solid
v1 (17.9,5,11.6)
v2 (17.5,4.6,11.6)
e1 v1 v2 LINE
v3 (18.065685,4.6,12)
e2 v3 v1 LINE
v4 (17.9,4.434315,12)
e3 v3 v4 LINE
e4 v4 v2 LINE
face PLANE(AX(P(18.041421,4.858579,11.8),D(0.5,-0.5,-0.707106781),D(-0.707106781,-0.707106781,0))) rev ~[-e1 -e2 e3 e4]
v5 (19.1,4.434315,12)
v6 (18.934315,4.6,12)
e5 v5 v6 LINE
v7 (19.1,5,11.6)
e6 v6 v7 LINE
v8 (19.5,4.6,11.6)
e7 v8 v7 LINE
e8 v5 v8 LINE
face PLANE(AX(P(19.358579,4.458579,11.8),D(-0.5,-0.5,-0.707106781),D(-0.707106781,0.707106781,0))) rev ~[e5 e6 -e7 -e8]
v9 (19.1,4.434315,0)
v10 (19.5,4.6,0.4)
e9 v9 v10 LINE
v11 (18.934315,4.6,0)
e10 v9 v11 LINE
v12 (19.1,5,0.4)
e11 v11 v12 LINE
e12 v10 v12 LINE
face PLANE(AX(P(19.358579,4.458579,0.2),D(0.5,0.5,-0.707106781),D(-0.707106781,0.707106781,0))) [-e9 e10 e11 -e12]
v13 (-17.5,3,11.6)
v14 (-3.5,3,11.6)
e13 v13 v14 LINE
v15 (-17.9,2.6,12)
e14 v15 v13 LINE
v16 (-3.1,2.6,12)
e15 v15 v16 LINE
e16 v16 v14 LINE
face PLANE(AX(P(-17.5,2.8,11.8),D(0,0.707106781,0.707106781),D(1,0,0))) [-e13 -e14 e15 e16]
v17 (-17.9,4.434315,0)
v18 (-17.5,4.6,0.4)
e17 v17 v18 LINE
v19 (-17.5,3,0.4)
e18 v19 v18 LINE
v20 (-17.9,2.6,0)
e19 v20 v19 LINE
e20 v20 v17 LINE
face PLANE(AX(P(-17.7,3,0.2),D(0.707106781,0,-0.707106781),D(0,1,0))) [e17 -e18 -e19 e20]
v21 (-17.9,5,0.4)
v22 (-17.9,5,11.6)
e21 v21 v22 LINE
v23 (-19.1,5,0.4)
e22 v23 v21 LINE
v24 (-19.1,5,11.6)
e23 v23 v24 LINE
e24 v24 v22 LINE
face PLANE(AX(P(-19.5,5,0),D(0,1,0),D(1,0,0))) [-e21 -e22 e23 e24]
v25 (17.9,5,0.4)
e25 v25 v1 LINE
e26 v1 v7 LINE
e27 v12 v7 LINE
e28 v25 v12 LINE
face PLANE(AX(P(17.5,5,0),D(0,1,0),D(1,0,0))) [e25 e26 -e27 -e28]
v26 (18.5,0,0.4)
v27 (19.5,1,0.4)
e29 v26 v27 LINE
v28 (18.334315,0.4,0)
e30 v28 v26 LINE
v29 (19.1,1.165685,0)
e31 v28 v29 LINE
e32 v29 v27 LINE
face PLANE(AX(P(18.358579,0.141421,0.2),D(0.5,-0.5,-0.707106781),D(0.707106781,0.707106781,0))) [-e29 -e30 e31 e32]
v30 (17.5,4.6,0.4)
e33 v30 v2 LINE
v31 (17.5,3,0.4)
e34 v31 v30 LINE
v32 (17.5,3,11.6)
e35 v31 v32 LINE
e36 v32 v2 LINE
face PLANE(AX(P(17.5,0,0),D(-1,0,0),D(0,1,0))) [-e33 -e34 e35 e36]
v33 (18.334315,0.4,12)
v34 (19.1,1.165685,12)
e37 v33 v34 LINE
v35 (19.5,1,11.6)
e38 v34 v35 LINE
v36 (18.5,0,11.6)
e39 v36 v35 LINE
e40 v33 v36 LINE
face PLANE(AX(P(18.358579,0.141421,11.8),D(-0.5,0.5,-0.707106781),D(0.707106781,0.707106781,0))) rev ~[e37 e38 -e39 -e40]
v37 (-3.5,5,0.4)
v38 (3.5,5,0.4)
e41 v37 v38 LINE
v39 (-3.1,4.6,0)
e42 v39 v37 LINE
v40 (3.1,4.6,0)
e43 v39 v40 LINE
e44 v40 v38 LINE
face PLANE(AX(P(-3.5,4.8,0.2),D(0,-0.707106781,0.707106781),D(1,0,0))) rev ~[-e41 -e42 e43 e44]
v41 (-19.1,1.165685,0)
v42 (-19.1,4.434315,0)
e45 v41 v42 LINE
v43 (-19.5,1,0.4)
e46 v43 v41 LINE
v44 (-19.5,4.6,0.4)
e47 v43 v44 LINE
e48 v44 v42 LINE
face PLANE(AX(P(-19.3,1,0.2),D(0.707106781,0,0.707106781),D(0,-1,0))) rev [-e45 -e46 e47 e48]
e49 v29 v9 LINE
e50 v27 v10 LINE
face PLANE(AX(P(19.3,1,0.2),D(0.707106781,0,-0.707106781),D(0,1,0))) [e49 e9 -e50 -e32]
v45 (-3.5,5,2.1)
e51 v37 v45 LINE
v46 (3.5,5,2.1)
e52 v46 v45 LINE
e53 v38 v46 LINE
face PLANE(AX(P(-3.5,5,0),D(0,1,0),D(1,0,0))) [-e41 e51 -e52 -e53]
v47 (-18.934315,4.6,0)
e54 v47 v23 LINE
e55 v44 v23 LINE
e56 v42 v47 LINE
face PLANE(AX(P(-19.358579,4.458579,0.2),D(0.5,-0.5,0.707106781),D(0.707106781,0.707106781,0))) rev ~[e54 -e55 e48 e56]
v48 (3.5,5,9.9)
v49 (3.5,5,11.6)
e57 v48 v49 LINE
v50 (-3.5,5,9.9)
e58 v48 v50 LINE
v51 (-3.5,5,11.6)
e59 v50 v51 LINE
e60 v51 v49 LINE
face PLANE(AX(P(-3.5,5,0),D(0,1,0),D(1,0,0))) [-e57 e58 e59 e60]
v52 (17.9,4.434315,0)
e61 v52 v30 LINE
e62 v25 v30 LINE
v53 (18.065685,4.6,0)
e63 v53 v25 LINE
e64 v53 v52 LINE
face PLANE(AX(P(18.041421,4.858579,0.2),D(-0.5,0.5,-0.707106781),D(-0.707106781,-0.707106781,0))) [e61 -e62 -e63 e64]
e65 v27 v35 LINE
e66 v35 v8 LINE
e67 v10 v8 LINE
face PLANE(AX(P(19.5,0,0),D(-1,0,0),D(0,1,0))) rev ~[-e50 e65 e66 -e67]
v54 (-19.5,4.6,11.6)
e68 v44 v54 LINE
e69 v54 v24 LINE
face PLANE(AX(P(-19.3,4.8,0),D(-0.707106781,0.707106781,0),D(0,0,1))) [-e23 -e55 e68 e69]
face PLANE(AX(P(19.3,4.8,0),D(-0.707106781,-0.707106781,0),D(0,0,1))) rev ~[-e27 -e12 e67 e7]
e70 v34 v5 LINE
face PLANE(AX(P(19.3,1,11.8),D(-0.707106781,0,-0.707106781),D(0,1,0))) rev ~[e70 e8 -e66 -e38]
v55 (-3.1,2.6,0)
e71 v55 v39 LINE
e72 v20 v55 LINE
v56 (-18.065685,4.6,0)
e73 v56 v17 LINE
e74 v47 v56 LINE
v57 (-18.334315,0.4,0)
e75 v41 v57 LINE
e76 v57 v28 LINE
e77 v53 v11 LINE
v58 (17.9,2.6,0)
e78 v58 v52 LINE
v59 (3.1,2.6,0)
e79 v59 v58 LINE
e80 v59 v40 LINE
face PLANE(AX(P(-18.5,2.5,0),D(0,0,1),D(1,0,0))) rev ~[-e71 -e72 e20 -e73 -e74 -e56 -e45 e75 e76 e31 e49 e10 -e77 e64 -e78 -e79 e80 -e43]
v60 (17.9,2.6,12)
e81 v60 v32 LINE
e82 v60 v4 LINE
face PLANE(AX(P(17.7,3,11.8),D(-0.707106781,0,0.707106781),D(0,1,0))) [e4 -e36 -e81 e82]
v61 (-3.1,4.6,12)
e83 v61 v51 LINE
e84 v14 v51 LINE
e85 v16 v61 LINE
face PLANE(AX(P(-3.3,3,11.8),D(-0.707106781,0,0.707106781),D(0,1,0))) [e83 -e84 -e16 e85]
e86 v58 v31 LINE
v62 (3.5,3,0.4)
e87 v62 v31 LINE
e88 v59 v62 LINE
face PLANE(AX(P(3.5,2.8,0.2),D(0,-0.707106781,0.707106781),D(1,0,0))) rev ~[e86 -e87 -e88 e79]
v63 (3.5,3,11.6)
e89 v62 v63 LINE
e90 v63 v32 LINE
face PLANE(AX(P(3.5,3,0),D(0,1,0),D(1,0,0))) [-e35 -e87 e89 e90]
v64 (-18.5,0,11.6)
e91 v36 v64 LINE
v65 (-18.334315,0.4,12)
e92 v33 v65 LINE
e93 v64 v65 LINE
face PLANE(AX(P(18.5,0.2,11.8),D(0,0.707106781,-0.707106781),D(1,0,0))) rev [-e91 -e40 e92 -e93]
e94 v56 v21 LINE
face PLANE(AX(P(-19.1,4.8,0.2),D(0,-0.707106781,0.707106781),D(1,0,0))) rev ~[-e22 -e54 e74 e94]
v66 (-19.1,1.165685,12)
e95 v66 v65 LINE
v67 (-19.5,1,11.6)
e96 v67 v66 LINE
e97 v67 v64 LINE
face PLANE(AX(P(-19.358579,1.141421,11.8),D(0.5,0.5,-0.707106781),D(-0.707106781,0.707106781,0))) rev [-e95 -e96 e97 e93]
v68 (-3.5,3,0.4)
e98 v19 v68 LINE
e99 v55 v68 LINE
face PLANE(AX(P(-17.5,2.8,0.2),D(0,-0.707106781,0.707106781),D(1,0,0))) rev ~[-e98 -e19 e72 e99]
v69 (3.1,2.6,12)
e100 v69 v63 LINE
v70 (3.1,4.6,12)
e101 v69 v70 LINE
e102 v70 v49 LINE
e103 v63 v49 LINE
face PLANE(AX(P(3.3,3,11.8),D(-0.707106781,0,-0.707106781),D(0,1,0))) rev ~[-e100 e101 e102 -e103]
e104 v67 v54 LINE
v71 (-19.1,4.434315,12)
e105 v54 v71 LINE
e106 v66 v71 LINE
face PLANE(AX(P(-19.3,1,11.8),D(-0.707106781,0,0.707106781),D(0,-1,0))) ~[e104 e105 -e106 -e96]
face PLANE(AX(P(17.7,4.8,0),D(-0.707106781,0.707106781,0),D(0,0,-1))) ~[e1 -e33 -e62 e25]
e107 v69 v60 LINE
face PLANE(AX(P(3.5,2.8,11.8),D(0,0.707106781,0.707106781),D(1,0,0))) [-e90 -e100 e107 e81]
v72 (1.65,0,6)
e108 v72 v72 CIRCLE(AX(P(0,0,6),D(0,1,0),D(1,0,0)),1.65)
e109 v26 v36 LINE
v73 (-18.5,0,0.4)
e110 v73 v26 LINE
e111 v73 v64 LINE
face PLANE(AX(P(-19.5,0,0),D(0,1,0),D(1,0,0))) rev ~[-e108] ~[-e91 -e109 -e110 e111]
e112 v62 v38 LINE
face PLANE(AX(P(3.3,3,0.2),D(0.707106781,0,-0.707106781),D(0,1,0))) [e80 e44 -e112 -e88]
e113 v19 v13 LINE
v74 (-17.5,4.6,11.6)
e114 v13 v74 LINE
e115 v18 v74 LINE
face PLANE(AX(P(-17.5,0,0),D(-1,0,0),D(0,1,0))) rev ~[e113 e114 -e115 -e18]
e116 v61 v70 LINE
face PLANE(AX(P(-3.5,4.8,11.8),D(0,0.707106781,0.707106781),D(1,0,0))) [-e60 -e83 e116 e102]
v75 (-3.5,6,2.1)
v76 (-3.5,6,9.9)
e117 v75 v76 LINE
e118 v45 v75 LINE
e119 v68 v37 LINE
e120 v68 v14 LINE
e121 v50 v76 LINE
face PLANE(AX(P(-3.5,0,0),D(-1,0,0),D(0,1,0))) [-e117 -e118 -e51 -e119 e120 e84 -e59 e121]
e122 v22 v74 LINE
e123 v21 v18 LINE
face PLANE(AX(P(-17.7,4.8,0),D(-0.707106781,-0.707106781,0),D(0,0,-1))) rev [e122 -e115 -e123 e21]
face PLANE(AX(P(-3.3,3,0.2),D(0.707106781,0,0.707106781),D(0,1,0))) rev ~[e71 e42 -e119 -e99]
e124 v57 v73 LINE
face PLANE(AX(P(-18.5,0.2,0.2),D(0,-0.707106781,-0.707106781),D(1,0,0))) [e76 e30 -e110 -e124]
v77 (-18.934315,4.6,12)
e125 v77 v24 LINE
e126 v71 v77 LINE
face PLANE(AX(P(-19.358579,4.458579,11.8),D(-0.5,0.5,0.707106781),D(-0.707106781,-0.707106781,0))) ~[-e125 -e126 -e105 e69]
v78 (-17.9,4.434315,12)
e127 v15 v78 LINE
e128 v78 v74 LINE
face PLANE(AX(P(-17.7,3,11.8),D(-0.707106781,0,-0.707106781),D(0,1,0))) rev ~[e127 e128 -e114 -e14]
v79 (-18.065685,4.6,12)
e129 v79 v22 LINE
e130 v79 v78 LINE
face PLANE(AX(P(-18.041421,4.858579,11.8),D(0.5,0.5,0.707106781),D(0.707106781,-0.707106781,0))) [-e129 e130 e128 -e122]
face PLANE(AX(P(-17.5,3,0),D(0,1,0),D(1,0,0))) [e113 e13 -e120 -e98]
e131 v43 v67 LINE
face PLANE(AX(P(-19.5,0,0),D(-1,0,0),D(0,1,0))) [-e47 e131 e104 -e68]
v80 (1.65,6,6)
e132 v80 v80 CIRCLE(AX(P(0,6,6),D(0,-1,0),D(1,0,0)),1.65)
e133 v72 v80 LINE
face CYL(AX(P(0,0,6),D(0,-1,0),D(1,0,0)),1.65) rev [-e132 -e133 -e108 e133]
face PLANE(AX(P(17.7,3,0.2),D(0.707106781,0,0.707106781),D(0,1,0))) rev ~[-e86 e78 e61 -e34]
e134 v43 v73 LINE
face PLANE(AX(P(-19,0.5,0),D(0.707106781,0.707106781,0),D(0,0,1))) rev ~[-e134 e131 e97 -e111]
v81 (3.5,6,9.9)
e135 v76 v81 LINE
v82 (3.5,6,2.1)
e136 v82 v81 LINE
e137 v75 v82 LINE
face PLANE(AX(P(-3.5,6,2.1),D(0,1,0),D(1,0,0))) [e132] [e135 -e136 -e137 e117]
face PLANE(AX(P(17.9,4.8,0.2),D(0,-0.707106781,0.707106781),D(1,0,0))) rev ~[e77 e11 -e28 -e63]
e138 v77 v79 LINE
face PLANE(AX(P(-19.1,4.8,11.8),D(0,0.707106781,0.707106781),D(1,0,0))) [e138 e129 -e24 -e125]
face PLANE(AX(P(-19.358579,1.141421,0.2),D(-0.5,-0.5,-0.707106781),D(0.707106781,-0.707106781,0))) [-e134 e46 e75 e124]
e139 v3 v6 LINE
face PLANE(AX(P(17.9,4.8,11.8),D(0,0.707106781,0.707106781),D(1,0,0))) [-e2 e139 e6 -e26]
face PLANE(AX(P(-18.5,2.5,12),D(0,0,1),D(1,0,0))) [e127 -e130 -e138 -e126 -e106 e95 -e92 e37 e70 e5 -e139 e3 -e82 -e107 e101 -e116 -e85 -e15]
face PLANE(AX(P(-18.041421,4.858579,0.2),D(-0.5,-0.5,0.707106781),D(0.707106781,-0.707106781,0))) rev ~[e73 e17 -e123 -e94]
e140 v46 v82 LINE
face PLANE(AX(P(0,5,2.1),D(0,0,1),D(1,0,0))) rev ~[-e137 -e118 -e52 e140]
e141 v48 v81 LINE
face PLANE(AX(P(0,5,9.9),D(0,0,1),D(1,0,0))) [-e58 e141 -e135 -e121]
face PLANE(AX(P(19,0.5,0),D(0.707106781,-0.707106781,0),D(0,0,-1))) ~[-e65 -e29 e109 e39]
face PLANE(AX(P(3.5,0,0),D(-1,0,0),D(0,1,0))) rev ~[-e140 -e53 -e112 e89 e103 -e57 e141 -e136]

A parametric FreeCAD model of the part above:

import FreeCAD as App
import Part
import Sketcher

V = App.Vector


def edges_at(feature, points):
    """Names of the edges that pass closest to the given points."""
    edges = feature.Shape.Edges
    near = lambda p: min(range(len(edges)), key=lambda i: edges[i].distToShape(Part.Vertex(*p))[0])
    return sorted({f"Edge{near(p) + 1}" for p in points})

doc = App.newDocument("Part")
body = doc.addObject("PartDesign::Body", "Body")

# Sketch on XZ plane
sketch1 = doc.addObject("Sketcher::SketchObject", "Sketch")
body.addObject(sketch1)
sketch1.AttachmentSupport = (doc.XZ_Plane, [""])
sketch1.MapMode = "FlatFace"
sketch1.addGeometry(Part.Circle(V(0, 6, 0), V(0, 0, 1), 1.65), False)
sketch1.addConstraint([
    Sketcher.Constraint("PointOnObject", 0, 3, -2),
    Sketcher.Constraint("Diameter", 0, 3.3),
    Sketcher.Constraint("DistanceY", -1, 1, 0, 3, 6.0),
])
pad1 = doc.addObject("PartDesign::Pad", "Pad")
body.addObject(pad1)
pad1.Profile = sketch1
pad1.Length = 10
pad1.Reversed = True
body2 = doc.addObject("PartDesign::Body", "Body001")

# Sketch on XY plane
sketch2 = doc.addObject("Sketcher::SketchObject", "Sketch001")
body2.addObject(sketch2)
sketch2.AttachmentSupport = (doc.getObject("XY_Plane001"), [""])
sketch2.MapMode = "FlatFace"
sketch2.addGeometry([
    Part.LineSegment(V(-3.5, 5, 0), V(-3.5, 0, 0)),
    Part.LineSegment(V(-3.5, 0, 0), V(3.5, 0, 0)),
    Part.LineSegment(V(3.5, 0, 0), V(3.5, 5, 0)),
    Part.LineSegment(V(3.5, 5, 0), V(-3.5, 5, 0)),
], False)
sketch2.addConstraint([
    Sketcher.Constraint("Coincident", 0, 2, 1, 1),
    Sketcher.Constraint("Coincident", 1, 2, 2, 1),
    Sketcher.Constraint("Coincident", 2, 2, 3, 1),
    Sketcher.Constraint("Coincident", 3, 2, 0, 1),
    Sketcher.Constraint("Vertical", 0),
    Sketcher.Constraint("Horizontal", 1),
    Sketcher.Constraint("Vertical", 2),
    Sketcher.Constraint("Horizontal", 3),
    Sketcher.Constraint("Symmetric", 0, 2, 1, 2, -1, 1),
    Sketcher.Constraint("DistanceX", 1, 1, 1, 2, 7.0),
    Sketcher.Constraint("DistanceY", 0, 2, 0, 1, 5.0),
])
pad2 = doc.addObject("PartDesign::Pad", "Pad001")
body2.addObject(pad2)
pad2.Profile = sketch2
pad2.Length = 12
body3 = doc.addObject("PartDesign::Body", "Body002")

# Sketch on XY plane
sketch3 = doc.addObject("Sketcher::SketchObject", "Sketch002")
body3.addObject(sketch3)
sketch3.AttachmentSupport = (doc.getObject("XY_Plane002"), [""])
sketch3.MapMode = "FlatFace"
sketch3.addGeometry([
    Part.LineSegment(V(3.5, 3, 0), V(3.5, 0, 0)),
    Part.LineSegment(V(3.5, 0, 0), V(17.5, 0, 0)),
    Part.LineSegment(V(17.5, 0, 0), V(17.5, 3, 0)),
    Part.LineSegment(V(17.5, 3, 0), V(3.5, 3, 0)),
], False)
sketch3.addConstraint([
    Sketcher.Constraint("Coincident", 0, 2, 1, 1),
    Sketcher.Constraint("Coincident", 1, 2, 2, 1),
    Sketcher.Constraint("Coincident", 2, 2, 3, 1),
    Sketcher.Constraint("Coincident", 3, 2, 0, 1),
    Sketcher.Constraint("Vertical", 0),
    Sketcher.Constraint("Horizontal", 1),
    Sketcher.Constraint("Vertical", 2),
    Sketcher.Constraint("Horizontal", 3),
    Sketcher.Constraint("PointOnObject", 0, 2, -1),
    Sketcher.Constraint("DistanceX", 1, 1, 1, 2, 14.0),
    Sketcher.Constraint("DistanceY", 0, 2, 0, 1, 3.0),
    Sketcher.Constraint("DistanceX", -1, 1, 0, 2, 3.5),
])
pad3 = doc.addObject("PartDesign::Pad", "Pad002")
body3.addObject(pad3)
pad3.Profile = sketch3
pad3.Length = 12
body4 = doc.addObject("PartDesign::Body", "Body003")

# Sketch on XY plane
sketch4 = doc.addObject("Sketcher::SketchObject", "Sketch003")
body4.addObject(sketch4)
sketch4.AttachmentSupport = (doc.getObject("XY_Plane003"), [""])
sketch4.MapMode = "FlatFace"
sketch4.addGeometry([
    Part.LineSegment(V(17.5, 5, 0), V(17.5, 0, 0)),
    Part.LineSegment(V(17.5, 0, 0), V(19.5, 0, 0)),
    Part.LineSegment(V(19.5, 0, 0), V(19.5, 5, 0)),
    Part.LineSegment(V(19.5, 5, 0), V(17.5, 5, 0)),
], False)
sketch4.addConstraint([
    Sketcher.Constraint("Coincident", 0, 2, 1, 1),
    Sketcher.Constraint("Coincident", 1, 2, 2, 1),
    Sketcher.Constraint("Coincident", 2, 2, 3, 1),
    Sketcher.Constraint("Coincident", 3, 2, 0, 1),
    Sketcher.Constraint("Vertical", 0),
    Sketcher.Constraint("Horizontal", 1),
    Sketcher.Constraint("Vertical", 2),
    Sketcher.Constraint("Horizontal", 3),
    Sketcher.Constraint("PointOnObject", 0, 2, -1),
    Sketcher.Constraint("DistanceX", 1, 1, 1, 2, 2.0),
    Sketcher.Constraint("DistanceY", 0, 2, 0, 1, 5.0),
    Sketcher.Constraint("DistanceX", -1, 1, 0, 2, 17.5),
])
pad4 = doc.addObject("PartDesign::Pad", "Pad003")
body4.addObject(pad4)
pad4.Profile = sketch4
pad4.Length = 12
body5 = doc.addObject("PartDesign::Body", "Body004")

# Sketch on XY plane
sketch5 = doc.addObject("Sketcher::SketchObject", "Sketch004")
body5.addObject(sketch5)
sketch5.AttachmentSupport = (doc.getObject("XY_Plane004"), [""])
sketch5.MapMode = "FlatFace"
sketch5.addGeometry([
    Part.LineSegment(V(-17.5, 3, 0), V(-17.5, 0, 0)),
    Part.LineSegment(V(-17.5, 0, 0), V(-3.5, 0, 0)),
    Part.LineSegment(V(-3.5, 0, 0), V(-3.5, 3, 0)),
    Part.LineSegment(V(-3.5, 3, 0), V(-17.5, 3, 0)),
], False)
sketch5.addConstraint([
    Sketcher.Constraint("Coincident", 0, 2, 1, 1),
    Sketcher.Constraint("Coincident", 1, 2, 2, 1),
    Sketcher.Constraint("Coincident", 2, 2, 3, 1),
    Sketcher.Constraint("Coincident", 3, 2, 0, 1),
    Sketcher.Constraint("Vertical", 0),
    Sketcher.Constraint("Horizontal", 1),
    Sketcher.Constraint("Vertical", 2),
    Sketcher.Constraint("Horizontal", 3),
    Sketcher.Constraint("PointOnObject", 0, 2, -1),
    Sketcher.Constraint("DistanceX", 1, 1, 1, 2, 14.0),
    Sketcher.Constraint("DistanceY", 0, 2, 0, 1, 3.0),
    Sketcher.Constraint("DistanceX", 0, 2, -1, 1, 17.5),
])
pad5 = doc.addObject("PartDesign::Pad", "Pad004")
body5.addObject(pad5)
pad5.Profile = sketch5
pad5.Length = 12
body6 = doc.addObject("PartDesign::Body", "Body005")

# Sketch on XY plane
sketch6 = doc.addObject("Sketcher::SketchObject", "Sketch005")
body6.addObject(sketch6)
sketch6.AttachmentSupport = (doc.getObject("XY_Plane005"), [""])
sketch6.MapMode = "FlatFace"
sketch6.addGeometry([
    Part.LineSegment(V(-19.5, 5, 0), V(-19.5, 0, 0)),
    Part.LineSegment(V(-19.5, 0, 0), V(-17.5, 0, 0)),
    Part.LineSegment(V(-17.5, 0, 0), V(-17.5, 5, 0)),
    Part.LineSegment(V(-17.5, 5, 0), V(-19.5, 5, 0)),
], False)
sketch6.addConstraint([
    Sketcher.Constraint("Coincident", 0, 2, 1, 1),
    Sketcher.Constraint("Coincident", 1, 2, 2, 1),
    Sketcher.Constraint("Coincident", 2, 2, 3, 1),
    Sketcher.Constraint("Coincident", 3, 2, 0, 1),
    Sketcher.Constraint("Vertical", 0),
    Sketcher.Constraint("Horizontal", 1),
    Sketcher.Constraint("Vertical", 2),
    Sketcher.Constraint("Horizontal", 3),
    Sketcher.Constraint("PointOnObject", 0, 2, -1),
    Sketcher.Constraint("DistanceX", 1, 1, 1, 2, 2.0),
    Sketcher.Constraint("DistanceY", 0, 2, 0, 1, 5.0),
    Sketcher.Constraint("DistanceX", 0, 2, -1, 1, 19.5),
])
pad6 = doc.addObject("PartDesign::Pad", "Pad005")
body6.addObject(pad6)
pad6.Profile = sketch6
pad6.Length = 12
body7 = doc.addObject("PartDesign::Body", "Body006")

# Sketch on XY plane
sketch7 = doc.addObject("Sketcher::SketchObject", "Sketch006")
body7.addObject(sketch7)
sketch7.AttachmentSupport = (doc.getObject("XY_Plane006"), [""])
sketch7.MapMode = "FlatFace"
sketch7.AttachmentOffset = App.Placement(V(0, 0, 2.1), App.Rotation())
sketch7.addGeometry([
    Part.LineSegment(V(-3.5, 6, 0), V(-3.5, 4, 0)),
    Part.LineSegment(V(-3.5, 4, 0), V(3.5, 4, 0)),
    Part.LineSegment(V(3.5, 4, 0), V(3.5, 6, 0)),
    Part.LineSegment(V(3.5, 6, 0), V(-3.5, 6, 0)),
], False)
sketch7.addConstraint([
    Sketcher.Constraint("Coincident", 0, 2, 1, 1),
    Sketcher.Constraint("Coincident", 1, 2, 2, 1),
    Sketcher.Constraint("Coincident", 2, 2, 3, 1),
    Sketcher.Constraint("Coincident", 3, 2, 0, 1),
    Sketcher.Constraint("Vertical", 0),
    Sketcher.Constraint("Horizontal", 1),
    Sketcher.Constraint("Vertical", 2),
    Sketcher.Constraint("Horizontal", 3),
    Sketcher.Constraint("DistanceX", 1, 1, 1, 2, 7.0),
    Sketcher.Constraint("DistanceY", 0, 2, 0, 1, 2.0),
    Sketcher.Constraint("DistanceY", -1, 1, 0, 2, 4.0),
    Sketcher.Constraint("DistanceX", 0, 2, -1, 1, 3.5),
])
pad7 = doc.addObject("PartDesign::Pad", "Pad006")
body7.addObject(pad7)
pad7.Profile = sketch7
pad7.Length = 7.8
doc.recompute()

boolean = doc.addObject("PartDesign::Boolean", "Boolean")
body7.addObject(boolean)
boolean.Type = "Fuse"
boolean.addObjects([body2])
doc.recompute()

boolean2 = doc.addObject("PartDesign::Boolean", "Boolean001")
body7.addObject(boolean2)
boolean2.Type = "Fuse"
boolean2.addObjects([body3])
doc.recompute()

boolean3 = doc.addObject("PartDesign::Boolean", "Boolean002")
body7.addObject(boolean3)
boolean3.Type = "Fuse"
boolean3.addObjects([body4])
doc.recompute()

boolean4 = doc.addObject("PartDesign::Boolean", "Boolean003")
body7.addObject(boolean4)
boolean4.Type = "Fuse"
boolean4.addObjects([body5])
doc.recompute()

boolean5 = doc.addObject("PartDesign::Boolean", "Boolean004")
body7.addObject(boolean5)
boolean5.Type = "Fuse"
boolean5.addObjects([body6])
doc.recompute()

boolean6 = doc.addObject("PartDesign::Boolean", "Boolean005")
body7.addObject(boolean6)
boolean6.Type = "Cut"
boolean6.addObjects([body])
doc.recompute()

chamfer = doc.addObject("PartDesign::Chamfer", "Chamfer")
body7.addObject(chamfer)
chamfer.Base = (boolean6, edges_at(boolean6, [(-19.5, 0, 6), (19.5, 0, 6)]))
chamfer.Size = 1
doc.recompute()

chamfer2 = doc.addObject("PartDesign::Chamfer", "Chamfer001")
body7.addObject(chamfer2)
chamfer2.Base = (chamfer, edges_at(chamfer, [
    (-19.5, 5, 6),
    (-17.5, 5, 6),
    (19.5, 5, 6),
    (17.5, 5, 6),
]))
chamfer2.Size = 0.4
doc.recompute()

chamfer3 = doc.addObject("PartDesign::Chamfer", "Chamfer002")
body7.addObject(chamfer3)
chamfer3.Base = (chamfer2, edges_at(chamfer2, [
    (-19.5, 2.8, 12),
    (-19.5, 2.8, 0),
    (-19, 0.5, 12),
    (0, 0, 12),
    (19, 0.5, 12),
    (19.5, 2.8, 12),
    (19.3, 4.8, 12),
    (18.5, 5, 12),
    (17.7, 4.8, 12),
    (17.5, 3.8, 12),
    (10.5, 3, 12),
    (3.5, 4, 12),
    (0, 5, 12),
    (-3.5, 4, 12),
    (-10.5, 3, 12),
    (-17.5, 3.8, 12),
    (-17.7, 4.8, 12),
    (-18.5, 5, 12),
    (-19.3, 4.8, 12),
    (-19.3, 4.8, 0),
    (-19, 0.5, 0),
    (19.5, 2.8, 0),
    (19, 0.5, 0),
    (0, 0, 0),
    (-18.5, 5, 0),
    (-17.7, 4.8, 0),
    (-17.5, 3.8, 0),
    (-10.5, 3, 0),
    (-3.5, 4, 0),
    (0, 5, 0),
    (3.5, 4, 0),
    (10.5, 3, 0),
    (17.5, 3.8, 0),
    (17.7, 4.8, 0),
    (18.5, 5, 0),
    (19.3, 4.8, 0),
]))
chamfer3.Size = 0.4

doc.recompute()
